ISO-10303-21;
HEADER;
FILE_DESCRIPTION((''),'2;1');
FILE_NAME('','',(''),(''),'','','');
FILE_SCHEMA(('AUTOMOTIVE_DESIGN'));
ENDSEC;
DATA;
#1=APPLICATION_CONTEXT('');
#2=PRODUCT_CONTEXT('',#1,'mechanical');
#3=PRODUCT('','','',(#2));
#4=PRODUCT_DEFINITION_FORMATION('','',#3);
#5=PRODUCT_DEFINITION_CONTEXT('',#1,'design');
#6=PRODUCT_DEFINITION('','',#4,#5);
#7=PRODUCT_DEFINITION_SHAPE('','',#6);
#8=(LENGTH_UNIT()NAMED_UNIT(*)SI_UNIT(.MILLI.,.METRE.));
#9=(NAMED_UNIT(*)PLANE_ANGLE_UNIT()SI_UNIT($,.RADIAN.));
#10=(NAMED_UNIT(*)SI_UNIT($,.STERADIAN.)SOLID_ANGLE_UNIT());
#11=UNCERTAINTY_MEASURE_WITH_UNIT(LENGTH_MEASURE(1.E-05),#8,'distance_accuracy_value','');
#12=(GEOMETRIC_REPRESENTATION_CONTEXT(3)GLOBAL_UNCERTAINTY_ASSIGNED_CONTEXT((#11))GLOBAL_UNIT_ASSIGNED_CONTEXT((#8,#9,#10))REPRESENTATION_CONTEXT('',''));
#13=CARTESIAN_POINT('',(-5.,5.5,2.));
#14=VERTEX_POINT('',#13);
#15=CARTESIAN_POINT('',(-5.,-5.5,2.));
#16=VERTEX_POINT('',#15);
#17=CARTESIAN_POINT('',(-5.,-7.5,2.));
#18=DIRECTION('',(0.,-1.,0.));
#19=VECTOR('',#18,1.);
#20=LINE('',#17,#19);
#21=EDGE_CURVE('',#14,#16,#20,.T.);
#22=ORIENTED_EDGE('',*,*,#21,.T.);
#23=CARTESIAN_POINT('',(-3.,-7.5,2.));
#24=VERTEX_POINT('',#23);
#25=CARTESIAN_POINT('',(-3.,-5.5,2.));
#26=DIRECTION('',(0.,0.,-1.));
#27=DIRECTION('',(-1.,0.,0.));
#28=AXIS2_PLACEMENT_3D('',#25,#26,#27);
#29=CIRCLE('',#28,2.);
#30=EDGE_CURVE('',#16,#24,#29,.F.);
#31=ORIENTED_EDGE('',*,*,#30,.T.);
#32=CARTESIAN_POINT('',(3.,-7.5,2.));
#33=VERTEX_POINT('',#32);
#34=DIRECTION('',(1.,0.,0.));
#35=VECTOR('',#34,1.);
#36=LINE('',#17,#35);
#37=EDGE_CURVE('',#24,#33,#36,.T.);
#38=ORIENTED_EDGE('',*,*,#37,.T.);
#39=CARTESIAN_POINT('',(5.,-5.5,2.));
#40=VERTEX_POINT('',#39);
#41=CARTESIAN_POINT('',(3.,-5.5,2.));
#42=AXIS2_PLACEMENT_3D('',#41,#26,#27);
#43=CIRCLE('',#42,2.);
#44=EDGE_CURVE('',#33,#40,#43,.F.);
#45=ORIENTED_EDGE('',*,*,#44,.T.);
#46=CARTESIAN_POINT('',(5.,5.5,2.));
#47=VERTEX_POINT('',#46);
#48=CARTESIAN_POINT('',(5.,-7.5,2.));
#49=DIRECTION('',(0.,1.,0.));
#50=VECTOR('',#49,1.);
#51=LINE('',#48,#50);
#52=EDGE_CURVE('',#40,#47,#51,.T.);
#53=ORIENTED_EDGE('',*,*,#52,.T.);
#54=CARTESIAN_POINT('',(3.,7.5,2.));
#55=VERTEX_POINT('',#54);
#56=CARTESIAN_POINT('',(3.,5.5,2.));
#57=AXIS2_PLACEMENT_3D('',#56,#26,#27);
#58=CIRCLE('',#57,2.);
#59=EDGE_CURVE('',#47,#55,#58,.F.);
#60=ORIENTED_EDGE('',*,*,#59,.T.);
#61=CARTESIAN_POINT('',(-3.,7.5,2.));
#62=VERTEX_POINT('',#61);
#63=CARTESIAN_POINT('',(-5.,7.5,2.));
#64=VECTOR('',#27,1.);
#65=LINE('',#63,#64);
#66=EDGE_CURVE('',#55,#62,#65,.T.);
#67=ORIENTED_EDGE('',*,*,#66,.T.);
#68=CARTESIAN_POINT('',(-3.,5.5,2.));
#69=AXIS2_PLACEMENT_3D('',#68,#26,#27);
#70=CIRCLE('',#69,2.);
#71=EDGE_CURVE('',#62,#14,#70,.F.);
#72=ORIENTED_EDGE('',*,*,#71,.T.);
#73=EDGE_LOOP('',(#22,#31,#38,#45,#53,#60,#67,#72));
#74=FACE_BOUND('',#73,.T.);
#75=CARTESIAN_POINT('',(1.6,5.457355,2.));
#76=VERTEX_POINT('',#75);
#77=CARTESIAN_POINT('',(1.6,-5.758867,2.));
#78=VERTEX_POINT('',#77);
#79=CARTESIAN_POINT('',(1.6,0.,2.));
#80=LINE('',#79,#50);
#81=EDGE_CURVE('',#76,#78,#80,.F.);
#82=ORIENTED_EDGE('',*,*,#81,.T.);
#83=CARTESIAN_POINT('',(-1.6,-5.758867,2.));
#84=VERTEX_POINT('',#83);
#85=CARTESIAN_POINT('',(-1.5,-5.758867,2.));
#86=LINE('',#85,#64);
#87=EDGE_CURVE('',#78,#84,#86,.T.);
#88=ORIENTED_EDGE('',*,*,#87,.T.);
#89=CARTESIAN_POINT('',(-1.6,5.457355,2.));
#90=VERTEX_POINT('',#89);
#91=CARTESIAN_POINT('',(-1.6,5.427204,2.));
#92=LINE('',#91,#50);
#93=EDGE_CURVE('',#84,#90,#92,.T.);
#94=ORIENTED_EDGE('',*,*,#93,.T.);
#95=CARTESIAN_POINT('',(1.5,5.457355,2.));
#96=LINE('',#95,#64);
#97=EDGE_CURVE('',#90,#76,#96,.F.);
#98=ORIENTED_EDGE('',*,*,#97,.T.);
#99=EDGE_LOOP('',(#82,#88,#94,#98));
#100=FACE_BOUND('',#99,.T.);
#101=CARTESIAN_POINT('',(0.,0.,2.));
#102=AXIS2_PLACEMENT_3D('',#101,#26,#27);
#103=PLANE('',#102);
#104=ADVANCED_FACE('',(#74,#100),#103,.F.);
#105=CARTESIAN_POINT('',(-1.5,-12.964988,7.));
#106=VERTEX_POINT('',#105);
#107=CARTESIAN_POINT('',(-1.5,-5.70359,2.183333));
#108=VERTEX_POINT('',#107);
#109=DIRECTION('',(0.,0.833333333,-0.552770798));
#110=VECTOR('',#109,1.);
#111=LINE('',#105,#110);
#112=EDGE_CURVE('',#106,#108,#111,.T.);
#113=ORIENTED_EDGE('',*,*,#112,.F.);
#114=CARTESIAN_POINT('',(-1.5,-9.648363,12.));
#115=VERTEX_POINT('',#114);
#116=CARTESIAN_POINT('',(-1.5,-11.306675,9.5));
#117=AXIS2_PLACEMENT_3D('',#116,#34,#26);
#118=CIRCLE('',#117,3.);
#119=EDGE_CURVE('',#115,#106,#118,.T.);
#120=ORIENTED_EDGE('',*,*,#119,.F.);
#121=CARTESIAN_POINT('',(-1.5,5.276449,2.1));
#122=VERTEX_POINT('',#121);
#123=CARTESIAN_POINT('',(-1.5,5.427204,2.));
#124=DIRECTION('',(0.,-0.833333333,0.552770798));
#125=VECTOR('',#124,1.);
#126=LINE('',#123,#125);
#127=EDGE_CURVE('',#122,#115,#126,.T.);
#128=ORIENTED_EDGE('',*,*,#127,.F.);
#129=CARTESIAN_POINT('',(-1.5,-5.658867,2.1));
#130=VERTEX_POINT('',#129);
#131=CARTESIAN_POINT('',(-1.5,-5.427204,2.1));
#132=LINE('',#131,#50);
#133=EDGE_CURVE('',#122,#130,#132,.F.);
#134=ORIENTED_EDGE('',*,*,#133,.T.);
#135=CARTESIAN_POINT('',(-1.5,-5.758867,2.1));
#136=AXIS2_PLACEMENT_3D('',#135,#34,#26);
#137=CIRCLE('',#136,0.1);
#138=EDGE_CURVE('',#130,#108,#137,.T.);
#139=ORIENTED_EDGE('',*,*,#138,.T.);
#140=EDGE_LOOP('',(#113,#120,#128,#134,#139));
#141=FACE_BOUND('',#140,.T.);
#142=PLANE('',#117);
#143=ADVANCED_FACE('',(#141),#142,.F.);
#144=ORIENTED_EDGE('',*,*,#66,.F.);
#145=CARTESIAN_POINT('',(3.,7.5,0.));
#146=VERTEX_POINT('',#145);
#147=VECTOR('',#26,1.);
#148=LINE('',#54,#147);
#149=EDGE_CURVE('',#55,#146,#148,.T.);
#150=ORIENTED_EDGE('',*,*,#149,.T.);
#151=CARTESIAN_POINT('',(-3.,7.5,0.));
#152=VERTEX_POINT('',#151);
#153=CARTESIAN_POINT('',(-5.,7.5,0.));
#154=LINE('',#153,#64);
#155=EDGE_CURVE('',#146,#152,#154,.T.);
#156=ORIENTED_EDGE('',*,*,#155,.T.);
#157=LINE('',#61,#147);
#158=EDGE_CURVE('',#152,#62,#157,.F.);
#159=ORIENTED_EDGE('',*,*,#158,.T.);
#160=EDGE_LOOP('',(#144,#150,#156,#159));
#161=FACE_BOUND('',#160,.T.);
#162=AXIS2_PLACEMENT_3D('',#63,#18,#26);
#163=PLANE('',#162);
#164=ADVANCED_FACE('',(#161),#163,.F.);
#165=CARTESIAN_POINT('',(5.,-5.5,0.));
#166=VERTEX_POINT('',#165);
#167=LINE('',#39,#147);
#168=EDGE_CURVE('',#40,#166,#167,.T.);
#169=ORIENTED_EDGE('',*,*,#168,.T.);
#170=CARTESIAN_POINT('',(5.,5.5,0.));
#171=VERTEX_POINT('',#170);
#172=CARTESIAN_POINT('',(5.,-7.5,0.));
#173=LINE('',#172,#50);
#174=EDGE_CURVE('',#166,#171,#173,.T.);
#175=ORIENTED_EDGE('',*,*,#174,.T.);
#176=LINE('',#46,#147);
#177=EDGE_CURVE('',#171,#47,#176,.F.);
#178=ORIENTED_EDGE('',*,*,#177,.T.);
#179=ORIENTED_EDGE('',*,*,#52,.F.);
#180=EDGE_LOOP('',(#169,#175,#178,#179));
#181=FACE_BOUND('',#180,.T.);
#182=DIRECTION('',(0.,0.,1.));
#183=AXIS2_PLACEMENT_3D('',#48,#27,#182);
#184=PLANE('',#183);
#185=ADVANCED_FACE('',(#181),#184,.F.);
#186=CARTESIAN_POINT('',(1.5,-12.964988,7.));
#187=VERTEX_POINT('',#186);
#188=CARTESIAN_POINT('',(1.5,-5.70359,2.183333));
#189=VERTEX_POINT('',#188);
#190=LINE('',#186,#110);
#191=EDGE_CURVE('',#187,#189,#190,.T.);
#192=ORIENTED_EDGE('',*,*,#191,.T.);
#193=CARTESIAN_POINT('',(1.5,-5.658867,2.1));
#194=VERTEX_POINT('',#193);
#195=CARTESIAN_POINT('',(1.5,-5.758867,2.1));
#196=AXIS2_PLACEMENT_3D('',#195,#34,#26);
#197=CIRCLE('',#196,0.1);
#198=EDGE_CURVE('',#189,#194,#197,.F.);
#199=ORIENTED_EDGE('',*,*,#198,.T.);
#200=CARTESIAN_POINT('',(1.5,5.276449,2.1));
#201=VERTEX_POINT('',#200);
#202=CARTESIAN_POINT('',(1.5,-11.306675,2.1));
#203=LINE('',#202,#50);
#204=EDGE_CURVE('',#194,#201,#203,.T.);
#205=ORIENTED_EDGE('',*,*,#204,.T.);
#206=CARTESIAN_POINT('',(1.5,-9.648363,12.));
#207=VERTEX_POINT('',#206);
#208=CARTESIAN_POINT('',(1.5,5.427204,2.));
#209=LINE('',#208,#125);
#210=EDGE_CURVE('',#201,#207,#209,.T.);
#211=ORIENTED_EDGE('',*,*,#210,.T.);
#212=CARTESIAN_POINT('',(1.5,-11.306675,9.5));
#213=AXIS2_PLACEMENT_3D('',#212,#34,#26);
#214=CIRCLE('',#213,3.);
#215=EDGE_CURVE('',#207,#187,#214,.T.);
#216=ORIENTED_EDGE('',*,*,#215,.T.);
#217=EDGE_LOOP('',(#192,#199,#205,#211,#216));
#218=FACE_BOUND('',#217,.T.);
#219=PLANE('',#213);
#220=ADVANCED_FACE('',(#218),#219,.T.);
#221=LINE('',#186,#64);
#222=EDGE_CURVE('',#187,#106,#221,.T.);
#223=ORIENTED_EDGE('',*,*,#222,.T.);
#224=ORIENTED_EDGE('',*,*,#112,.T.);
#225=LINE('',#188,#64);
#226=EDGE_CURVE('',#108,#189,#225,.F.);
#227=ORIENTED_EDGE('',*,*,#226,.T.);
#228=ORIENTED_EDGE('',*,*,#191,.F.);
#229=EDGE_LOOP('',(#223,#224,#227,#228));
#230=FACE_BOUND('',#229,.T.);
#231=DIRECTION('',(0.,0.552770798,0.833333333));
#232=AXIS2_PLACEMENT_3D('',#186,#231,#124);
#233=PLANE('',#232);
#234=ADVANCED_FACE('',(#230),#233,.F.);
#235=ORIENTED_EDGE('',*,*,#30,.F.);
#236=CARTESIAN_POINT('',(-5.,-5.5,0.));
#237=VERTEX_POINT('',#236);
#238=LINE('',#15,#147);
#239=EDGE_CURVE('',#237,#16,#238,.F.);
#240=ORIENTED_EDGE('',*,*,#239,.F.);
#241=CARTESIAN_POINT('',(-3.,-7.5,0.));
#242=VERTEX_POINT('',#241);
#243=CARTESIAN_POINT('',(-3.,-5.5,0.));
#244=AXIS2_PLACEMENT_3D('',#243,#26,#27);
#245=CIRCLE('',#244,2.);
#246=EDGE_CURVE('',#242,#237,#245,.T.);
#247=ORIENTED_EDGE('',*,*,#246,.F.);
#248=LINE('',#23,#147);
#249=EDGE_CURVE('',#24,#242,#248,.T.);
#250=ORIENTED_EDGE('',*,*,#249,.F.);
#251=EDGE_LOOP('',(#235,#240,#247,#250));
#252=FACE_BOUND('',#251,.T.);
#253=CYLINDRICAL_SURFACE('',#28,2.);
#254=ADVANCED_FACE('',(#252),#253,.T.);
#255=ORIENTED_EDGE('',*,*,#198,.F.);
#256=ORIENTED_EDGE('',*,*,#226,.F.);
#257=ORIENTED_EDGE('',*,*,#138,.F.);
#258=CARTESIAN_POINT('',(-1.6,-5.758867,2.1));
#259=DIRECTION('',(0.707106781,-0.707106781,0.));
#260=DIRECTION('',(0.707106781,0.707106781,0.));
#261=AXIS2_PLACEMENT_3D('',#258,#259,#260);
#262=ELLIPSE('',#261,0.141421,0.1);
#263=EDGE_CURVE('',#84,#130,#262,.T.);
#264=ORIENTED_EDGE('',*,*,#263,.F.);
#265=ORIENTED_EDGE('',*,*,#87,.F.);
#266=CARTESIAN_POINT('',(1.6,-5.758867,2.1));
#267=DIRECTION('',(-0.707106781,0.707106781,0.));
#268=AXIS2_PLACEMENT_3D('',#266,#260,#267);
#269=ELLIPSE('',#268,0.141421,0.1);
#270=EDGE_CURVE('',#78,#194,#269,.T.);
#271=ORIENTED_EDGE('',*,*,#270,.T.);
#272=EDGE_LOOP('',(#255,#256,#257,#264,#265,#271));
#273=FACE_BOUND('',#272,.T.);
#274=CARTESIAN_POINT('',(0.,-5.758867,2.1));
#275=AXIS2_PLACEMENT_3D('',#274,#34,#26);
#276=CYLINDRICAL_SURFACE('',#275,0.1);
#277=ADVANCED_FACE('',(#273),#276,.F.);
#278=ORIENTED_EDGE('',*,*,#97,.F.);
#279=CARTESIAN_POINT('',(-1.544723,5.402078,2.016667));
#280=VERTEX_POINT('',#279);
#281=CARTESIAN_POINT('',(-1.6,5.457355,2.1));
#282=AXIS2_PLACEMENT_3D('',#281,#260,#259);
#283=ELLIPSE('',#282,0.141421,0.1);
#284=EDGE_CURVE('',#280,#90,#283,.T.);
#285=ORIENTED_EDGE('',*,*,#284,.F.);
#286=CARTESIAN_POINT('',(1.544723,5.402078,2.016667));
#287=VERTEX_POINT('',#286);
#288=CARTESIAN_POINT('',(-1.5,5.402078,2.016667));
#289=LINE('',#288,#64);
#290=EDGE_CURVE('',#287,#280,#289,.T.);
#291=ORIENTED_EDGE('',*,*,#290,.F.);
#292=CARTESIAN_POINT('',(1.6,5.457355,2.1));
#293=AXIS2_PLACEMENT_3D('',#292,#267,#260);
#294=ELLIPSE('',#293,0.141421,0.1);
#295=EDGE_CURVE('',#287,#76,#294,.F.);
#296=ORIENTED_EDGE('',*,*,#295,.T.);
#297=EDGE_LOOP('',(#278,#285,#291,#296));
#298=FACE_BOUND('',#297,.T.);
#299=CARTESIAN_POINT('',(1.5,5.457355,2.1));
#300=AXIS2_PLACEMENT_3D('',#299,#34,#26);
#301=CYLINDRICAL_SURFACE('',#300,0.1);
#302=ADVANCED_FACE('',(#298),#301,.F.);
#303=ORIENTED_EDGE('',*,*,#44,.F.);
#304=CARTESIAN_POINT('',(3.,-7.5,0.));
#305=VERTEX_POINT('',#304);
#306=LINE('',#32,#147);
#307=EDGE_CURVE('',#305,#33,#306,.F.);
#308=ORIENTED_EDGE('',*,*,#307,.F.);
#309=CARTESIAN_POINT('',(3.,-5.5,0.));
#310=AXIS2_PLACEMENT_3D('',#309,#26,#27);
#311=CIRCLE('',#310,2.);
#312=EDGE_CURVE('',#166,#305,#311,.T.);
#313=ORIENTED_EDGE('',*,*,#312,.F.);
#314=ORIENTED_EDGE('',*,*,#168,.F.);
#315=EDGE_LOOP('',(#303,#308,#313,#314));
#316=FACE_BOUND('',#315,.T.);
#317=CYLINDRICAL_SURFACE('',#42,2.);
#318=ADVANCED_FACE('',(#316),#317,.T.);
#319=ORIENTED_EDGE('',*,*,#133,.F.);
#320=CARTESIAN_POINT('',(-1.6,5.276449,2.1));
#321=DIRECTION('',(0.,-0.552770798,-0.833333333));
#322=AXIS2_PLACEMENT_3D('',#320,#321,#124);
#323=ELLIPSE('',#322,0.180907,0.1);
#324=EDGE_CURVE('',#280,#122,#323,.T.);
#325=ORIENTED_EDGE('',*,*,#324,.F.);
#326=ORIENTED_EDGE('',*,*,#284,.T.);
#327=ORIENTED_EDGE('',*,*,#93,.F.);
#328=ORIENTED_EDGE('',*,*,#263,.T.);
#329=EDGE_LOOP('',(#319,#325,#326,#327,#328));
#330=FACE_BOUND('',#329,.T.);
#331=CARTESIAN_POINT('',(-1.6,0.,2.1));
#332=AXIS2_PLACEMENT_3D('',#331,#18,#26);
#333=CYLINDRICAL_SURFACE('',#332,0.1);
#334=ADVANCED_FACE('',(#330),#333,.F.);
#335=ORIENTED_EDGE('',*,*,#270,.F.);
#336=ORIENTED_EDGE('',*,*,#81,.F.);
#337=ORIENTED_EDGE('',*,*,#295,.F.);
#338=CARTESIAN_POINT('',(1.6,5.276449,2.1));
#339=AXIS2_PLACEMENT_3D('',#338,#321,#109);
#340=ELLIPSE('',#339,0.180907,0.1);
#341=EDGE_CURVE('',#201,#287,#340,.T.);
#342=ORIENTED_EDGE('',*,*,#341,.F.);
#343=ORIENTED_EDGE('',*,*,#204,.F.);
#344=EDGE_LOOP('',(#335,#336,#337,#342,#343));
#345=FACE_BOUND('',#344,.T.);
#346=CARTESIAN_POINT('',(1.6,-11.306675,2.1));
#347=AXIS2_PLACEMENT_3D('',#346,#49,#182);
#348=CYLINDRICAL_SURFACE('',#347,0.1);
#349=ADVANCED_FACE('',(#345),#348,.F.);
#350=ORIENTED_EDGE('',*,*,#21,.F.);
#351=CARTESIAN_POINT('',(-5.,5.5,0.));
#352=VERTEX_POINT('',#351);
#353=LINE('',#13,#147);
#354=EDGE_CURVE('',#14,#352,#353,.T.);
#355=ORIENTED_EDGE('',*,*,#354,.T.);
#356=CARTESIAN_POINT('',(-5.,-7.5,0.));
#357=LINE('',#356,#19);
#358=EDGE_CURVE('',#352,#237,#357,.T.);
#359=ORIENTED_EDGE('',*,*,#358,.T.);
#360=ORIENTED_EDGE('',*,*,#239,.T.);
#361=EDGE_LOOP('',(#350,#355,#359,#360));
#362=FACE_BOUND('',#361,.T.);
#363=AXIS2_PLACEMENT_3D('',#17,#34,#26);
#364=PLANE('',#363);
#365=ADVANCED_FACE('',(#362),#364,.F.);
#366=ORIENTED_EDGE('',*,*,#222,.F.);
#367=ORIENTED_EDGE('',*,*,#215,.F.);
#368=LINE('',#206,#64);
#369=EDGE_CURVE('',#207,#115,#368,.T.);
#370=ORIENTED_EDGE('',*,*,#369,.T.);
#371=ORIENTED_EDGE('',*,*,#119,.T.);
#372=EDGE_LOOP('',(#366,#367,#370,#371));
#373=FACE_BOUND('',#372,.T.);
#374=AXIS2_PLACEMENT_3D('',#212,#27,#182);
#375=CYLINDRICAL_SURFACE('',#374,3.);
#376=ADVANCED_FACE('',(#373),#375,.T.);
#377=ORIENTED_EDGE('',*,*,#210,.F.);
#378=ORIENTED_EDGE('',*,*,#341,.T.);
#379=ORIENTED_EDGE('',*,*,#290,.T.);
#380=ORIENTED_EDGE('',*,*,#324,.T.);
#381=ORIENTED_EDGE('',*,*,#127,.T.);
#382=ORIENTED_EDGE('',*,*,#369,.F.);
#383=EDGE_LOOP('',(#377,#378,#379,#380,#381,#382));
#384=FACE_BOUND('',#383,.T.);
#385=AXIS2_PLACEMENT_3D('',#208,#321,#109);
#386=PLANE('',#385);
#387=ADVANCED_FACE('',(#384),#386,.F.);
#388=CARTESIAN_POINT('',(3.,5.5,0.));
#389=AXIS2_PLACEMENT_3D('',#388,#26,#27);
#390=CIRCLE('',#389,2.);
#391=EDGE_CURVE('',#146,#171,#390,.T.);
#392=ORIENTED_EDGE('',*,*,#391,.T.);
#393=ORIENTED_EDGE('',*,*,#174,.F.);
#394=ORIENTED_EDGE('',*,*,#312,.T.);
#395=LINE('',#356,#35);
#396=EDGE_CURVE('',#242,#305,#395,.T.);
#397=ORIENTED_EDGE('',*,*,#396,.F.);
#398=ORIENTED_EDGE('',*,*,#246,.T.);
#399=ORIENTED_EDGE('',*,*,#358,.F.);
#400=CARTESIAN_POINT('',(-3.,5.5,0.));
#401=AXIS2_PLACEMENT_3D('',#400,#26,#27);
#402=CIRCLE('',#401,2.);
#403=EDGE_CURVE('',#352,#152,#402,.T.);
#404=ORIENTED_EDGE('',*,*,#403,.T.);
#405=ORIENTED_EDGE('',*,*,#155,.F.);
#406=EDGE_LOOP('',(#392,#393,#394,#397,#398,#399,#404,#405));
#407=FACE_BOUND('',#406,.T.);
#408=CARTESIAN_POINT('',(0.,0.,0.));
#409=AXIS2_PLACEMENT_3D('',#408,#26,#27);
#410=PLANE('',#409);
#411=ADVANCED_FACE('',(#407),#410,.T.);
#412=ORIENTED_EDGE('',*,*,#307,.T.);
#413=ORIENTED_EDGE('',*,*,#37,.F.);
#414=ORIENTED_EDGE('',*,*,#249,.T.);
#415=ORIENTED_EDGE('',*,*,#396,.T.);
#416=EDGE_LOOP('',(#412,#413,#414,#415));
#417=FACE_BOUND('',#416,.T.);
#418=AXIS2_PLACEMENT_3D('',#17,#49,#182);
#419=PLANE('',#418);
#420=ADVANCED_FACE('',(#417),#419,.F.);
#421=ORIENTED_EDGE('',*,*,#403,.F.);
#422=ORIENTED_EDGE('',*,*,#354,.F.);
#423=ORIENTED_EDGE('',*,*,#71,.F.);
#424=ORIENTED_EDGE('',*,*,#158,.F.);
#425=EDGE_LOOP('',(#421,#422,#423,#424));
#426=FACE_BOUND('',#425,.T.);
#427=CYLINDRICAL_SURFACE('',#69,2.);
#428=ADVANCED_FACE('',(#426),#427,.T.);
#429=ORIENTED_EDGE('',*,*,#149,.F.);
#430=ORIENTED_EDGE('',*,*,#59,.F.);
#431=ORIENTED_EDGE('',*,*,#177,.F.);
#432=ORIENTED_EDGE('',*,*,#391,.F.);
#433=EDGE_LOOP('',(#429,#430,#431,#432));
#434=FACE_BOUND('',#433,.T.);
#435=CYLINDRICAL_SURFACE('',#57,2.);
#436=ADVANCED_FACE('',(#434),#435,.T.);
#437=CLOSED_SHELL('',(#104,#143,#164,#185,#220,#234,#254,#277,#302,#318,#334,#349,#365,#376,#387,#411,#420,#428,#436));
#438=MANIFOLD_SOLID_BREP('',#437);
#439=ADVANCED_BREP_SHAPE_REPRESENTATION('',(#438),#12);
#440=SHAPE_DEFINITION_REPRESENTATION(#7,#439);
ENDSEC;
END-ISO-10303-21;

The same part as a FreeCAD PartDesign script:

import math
import FreeCAD as App
import Part
import Sketcher

V = App.Vector
Q = App.Units.Quantity


def edges_at(feature, points):
    """Names of the edges that pass closest to the given points."""
    edges = feature.Shape.Edges
    near = lambda p: min(range(len(edges)), key=lambda i: edges[i].distToShape(Part.Vertex(*p))[0])
    return sorted({f"Edge{near(p) + 1}" for p in points})


def add_polygon(sketch, points):
    """Adds a closed chain of lines whose ends are joined by coincident constraints."""
    first, n = sketch.GeometryCount, len(points)
    for a, b in zip(points, points[1:] + points[:1]):
        sketch.addGeometry(Part.LineSegment(App.Vector(*a, 0), App.Vector(*b, 0)), False)
    for i in range(n):
        sketch.addConstraint(Sketcher.Constraint("Coincident", first + i, 2, first + (i + 1) % n, 1))

doc = App.newDocument("Part")
body = doc.addObject("PartDesign::Body", "Body")

sketch1 = body.newObject("Sketcher::SketchObject", "Sketch")
sketch1.AttachmentSupport = (doc.getObject("XY_Plane"), [""])
sketch1.MapMode = "FlatFace"
add_polygon(sketch1, [(-5, 8), (-5, -8), (5, -8), (5, 8)])
sketch1.addConstraint(Sketcher.Constraint("Vertical", 0))
sketch1.addConstraint(Sketcher.Constraint("Horizontal", 1))
sketch1.addConstraint(Sketcher.Constraint("Vertical", 2))
sketch1.addConstraint(Sketcher.Constraint("Horizontal", 3))
sketch1.addConstraint(Sketcher.Constraint("Symmetric", 0, 2, 2, 2, -1, 1))
sketch1.addConstraint(Sketcher.Constraint("DistanceX", 1, 1, 1, 2, Q("10 mm")))
sketch1.addConstraint(Sketcher.Constraint("DistanceY", 0, 2, 0, 1, Q("15 mm")))
pad1 = body.newObject("PartDesign::Pad", "Pad")
pad1.Profile = sketch1
pad1.Length = 2

sketch2 = body.newObject("Sketcher::SketchObject", "Sketch001")
sketch2.AttachmentSupport = (doc.getObject("YZ_Plane"), [""])
sketch2.MapMode = "FlatFace"
sketch2.addGeometry(Part.LineSegment(V(5.4, 2, 0), V(-9.6, 12, 0)), False)
sketch2.addGeometry(Part.ArcOfCircle(Part.Circle(V(-11.3, 9.5, 0), V(0, 0, 1), 3), math.radians(56), math.radians(236)), False)
sketch2.addGeometry(Part.LineSegment(V(-13, 7, 0), V(-5.4, 2, 0)), False)
sketch2.addGeometry(Part.LineSegment(V(-5.4, 2, 0), V(5.4, 2, 0)), False)
sketch2.addConstraint(Sketcher.Constraint("Tangent", 0, 2, 1, 1))
sketch2.addConstraint(Sketcher.Constraint("Tangent", 1, 2, 2, 1))
sketch2.addConstraint(Sketcher.Constraint("Coincident", 2, 2, 3, 1))
sketch2.addConstraint(Sketcher.Constraint("Coincident", 3, 2, 0, 1))
sketch2.addConstraint(Sketcher.Constraint("Horizontal", 3))
sketch2.addConstraint(Sketcher.Constraint("Parallel", 0, 2))
sketch2.addConstraint(Sketcher.Constraint("Radius", 1, Q("3 mm")))
sketch2.addConstraint(Sketcher.Constraint("DistanceY", -1, 1, 0, 2, Q("12 mm")))
sketch2.addConstraint(Sketcher.Constraint("DistanceY", -1, 1, 1, 2, Q("7 mm")))
sketch2.addConstraint(Sketcher.Constraint("DistanceY", -1, 1, 2, 2, Q("2 mm")))
sketch2.addConstraint(Sketcher.Constraint("DistanceX", 1, 3, -1, 1, Q("11.306675 mm")))
pad2 = body.newObject("PartDesign::Pad", "Pad001")
pad2.Profile = sketch2
pad2.Length = 3
pad2.Midplane = True
doc.recompute()

fillet = body.newObject("PartDesign::Fillet", "Fillet")
fillet.Base = (pad2, edges_at(pad2, [
    (5, -7.5, 1),
    (-5, -7.5, 1),
    (-5, 7.5, 1),
    (5, 7.5, 1),
]))
fillet.Radius = 2
doc.recompute()

fillet2 = body.newObject("PartDesign::Fillet", "Fillet001")
fillet2.Base = (fillet, edges_at(fillet, [
    (-1.5, 0, 2),
    (0, -5.427, 2),
    (0, 5.427, 2),
    (1.5, 0, 2),
]))
fillet2.Radius = 0.1

doc.recompute()
